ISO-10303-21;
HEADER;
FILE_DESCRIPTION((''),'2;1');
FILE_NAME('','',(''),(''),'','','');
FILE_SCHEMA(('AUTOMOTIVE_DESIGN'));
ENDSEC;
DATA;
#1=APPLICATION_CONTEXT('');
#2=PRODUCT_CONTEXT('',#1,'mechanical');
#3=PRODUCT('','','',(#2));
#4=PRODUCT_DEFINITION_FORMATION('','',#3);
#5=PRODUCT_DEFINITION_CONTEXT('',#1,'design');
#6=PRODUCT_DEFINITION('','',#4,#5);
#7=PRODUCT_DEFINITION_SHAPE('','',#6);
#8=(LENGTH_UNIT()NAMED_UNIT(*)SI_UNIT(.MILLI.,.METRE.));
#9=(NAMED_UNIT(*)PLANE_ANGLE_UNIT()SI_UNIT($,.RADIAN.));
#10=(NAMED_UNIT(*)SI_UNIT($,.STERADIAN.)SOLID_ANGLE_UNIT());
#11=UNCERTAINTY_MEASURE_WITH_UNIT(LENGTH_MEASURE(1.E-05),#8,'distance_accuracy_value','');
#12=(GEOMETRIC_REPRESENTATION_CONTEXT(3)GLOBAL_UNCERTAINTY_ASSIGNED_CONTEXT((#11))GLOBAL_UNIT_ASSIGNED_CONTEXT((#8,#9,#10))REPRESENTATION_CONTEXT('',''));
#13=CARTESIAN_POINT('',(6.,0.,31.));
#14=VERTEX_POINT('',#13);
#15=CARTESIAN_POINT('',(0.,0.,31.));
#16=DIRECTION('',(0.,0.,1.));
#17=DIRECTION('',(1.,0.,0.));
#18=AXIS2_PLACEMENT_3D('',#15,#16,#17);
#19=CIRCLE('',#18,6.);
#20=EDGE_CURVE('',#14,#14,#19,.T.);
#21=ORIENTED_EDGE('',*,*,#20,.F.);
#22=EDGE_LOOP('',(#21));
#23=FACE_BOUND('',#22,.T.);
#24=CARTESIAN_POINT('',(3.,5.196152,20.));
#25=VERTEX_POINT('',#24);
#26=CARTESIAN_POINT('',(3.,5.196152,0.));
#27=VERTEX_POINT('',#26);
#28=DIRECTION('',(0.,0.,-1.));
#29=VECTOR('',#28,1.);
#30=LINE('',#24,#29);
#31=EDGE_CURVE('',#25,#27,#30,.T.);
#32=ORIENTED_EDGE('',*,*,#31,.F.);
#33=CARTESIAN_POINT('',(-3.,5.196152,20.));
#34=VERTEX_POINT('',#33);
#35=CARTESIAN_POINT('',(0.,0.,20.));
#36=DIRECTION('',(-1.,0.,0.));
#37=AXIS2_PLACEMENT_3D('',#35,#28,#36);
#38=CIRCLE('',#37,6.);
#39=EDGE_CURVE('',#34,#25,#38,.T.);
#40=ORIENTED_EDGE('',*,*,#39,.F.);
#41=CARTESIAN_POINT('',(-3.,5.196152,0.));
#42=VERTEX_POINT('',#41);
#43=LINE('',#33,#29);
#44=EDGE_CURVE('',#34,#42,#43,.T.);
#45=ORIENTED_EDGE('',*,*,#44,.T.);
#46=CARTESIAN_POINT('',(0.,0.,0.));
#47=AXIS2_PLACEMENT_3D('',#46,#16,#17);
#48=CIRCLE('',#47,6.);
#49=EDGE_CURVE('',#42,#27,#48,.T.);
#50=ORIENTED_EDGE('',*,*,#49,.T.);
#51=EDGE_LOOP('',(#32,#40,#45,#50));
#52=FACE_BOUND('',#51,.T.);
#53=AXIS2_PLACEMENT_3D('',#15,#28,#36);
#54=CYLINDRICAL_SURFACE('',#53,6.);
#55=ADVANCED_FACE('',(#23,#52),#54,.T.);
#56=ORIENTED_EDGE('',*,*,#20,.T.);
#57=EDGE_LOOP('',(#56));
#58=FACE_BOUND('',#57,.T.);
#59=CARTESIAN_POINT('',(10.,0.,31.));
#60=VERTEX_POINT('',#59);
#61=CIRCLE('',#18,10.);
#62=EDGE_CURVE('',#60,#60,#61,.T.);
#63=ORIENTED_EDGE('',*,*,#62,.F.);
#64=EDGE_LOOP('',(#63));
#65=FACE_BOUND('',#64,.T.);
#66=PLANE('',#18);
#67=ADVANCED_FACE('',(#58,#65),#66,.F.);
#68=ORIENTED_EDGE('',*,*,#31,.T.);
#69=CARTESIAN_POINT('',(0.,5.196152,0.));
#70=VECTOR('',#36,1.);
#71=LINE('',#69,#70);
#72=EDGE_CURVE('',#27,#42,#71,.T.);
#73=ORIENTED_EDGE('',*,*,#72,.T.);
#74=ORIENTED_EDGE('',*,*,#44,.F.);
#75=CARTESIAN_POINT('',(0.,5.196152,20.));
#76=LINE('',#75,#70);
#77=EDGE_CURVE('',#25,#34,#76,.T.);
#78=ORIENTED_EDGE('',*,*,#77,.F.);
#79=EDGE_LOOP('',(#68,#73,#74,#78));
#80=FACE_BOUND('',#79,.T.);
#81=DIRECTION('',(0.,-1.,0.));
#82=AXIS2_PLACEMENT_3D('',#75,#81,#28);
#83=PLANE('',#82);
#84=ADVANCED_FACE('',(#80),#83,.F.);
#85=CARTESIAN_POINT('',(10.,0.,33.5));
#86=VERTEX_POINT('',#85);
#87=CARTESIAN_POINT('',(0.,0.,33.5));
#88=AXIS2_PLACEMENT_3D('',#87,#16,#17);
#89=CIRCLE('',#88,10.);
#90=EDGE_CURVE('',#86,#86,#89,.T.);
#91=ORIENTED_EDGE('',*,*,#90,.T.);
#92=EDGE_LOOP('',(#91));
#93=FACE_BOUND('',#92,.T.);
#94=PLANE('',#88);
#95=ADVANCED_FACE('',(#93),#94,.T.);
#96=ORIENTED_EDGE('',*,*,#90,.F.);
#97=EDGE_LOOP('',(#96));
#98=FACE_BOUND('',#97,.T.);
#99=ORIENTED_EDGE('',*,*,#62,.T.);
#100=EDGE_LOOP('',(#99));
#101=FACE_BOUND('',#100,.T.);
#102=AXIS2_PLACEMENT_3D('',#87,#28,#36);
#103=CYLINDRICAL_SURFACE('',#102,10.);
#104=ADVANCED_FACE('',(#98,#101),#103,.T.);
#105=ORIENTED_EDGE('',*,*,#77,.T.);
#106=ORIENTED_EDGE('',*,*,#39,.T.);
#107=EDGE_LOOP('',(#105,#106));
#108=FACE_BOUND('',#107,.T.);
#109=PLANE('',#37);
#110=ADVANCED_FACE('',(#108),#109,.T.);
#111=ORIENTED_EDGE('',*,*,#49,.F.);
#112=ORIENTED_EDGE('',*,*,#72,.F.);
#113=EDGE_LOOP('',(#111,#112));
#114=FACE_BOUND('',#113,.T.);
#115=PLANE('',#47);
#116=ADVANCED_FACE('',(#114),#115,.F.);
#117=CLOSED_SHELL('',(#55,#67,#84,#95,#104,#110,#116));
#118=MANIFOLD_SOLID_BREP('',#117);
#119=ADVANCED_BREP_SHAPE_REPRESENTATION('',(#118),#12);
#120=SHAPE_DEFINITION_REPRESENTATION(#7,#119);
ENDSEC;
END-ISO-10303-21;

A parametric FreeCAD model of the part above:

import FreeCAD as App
import Part
import Sketcher
Q = App.Units.Quantity


def add_polygon(sketch, points):
    """Adds a closed chain of lines whose ends are joined by coincident constraints."""
    first, n = sketch.GeometryCount, len(points)
    for a, b in zip(points, points[1:] + points[:1]):
        sketch.addGeometry(Part.LineSegment(App.Vector(*a, 0), App.Vector(*b, 0)), False)
    for i in range(n):
        sketch.addConstraint(Sketcher.Constraint("Coincident", first + i, 2, first + (i + 1) % n, 1))

doc = App.newDocument("Part")
body = doc.addObject("PartDesign::Body", "Body")

# Sketch on XY plane
sketch1 = body.newObject("Sketcher::SketchObject", "Sketch")
sketch1.AttachmentSupport = (doc.getObject("XY_Plane"), [""])
sketch1.MapMode = "FlatFace"
sketch1.addGeometry(Part.Circle(App.Vector(0, 0, 0), App.Vector(0, 0, 1), 6), False)
sketch1.addConstraint([
    Sketcher.Constraint("Coincident", 0, 3, -1, 1),
    Sketcher.Constraint("Diameter", 0, Q("12 mm")),
])
pad1 = body.newObject("PartDesign::Pad", "Pad")
pad1.Profile = sketch1
pad1.Length = 31

# Sketch on XY plane
sketch2 = body.newObject("Sketcher::SketchObject", "Sketch001")
sketch2.AttachmentSupport = (doc.getObject("XY_Plane"), [""])
sketch2.MapMode = "FlatFace"
add_polygon(sketch2, [(42, 5), (-42, 5), (-42, 83), (42, 83)])  # lines 0-3
sketch2.addConstraint([
    Sketcher.Constraint("Horizontal", 0),
    Sketcher.Constraint("Vertical", 1),
    Sketcher.Constraint("Horizontal", 2),
    Sketcher.Constraint("Vertical", 3),
    Sketcher.Constraint("DistanceX", 0, 2, 0, 1, Q("83.460084 mm")),
    Sketcher.Constraint("DistanceY", 1, 1, 1, 2, Q("77.460084 mm")),
    Sketcher.Constraint("DistanceX", 0, 2, -1, 1, Q("41.730042 mm")),
    Sketcher.Constraint("DistanceY", -1, 1, 0, 2, Q("5.196152 mm")),
])
pocket1 = body.newObject("PartDesign::Pocket", "Pocket")
pocket1.Profile = sketch2
pocket1.Length = 20
pocket1.Reversed = True

# Sketch on XY plane
sketch3 = body.newObject("Sketcher::SketchObject", "Sketch002")
sketch3.AttachmentSupport = (doc.getObject("XY_Plane"), [""])
sketch3.MapMode = "FlatFace"
sketch3.AttachmentOffset = App.Placement(App.Vector(0, 0, 31), App.Rotation())
sketch3.addGeometry(Part.Circle(App.Vector(0, 0, 0), App.Vector(0, 0, 1), 10), False)
sketch3.addConstraint([
    Sketcher.Constraint("Coincident", 0, 3, -1, 1),
    Sketcher.Constraint("Diameter", 0, Q("20 mm")),
])
pad2 = body.newObject("PartDesign::Pad", "Pad001")
pad2.Profile = sketch3
pad2.Length = 2.5

doc.recompute()
